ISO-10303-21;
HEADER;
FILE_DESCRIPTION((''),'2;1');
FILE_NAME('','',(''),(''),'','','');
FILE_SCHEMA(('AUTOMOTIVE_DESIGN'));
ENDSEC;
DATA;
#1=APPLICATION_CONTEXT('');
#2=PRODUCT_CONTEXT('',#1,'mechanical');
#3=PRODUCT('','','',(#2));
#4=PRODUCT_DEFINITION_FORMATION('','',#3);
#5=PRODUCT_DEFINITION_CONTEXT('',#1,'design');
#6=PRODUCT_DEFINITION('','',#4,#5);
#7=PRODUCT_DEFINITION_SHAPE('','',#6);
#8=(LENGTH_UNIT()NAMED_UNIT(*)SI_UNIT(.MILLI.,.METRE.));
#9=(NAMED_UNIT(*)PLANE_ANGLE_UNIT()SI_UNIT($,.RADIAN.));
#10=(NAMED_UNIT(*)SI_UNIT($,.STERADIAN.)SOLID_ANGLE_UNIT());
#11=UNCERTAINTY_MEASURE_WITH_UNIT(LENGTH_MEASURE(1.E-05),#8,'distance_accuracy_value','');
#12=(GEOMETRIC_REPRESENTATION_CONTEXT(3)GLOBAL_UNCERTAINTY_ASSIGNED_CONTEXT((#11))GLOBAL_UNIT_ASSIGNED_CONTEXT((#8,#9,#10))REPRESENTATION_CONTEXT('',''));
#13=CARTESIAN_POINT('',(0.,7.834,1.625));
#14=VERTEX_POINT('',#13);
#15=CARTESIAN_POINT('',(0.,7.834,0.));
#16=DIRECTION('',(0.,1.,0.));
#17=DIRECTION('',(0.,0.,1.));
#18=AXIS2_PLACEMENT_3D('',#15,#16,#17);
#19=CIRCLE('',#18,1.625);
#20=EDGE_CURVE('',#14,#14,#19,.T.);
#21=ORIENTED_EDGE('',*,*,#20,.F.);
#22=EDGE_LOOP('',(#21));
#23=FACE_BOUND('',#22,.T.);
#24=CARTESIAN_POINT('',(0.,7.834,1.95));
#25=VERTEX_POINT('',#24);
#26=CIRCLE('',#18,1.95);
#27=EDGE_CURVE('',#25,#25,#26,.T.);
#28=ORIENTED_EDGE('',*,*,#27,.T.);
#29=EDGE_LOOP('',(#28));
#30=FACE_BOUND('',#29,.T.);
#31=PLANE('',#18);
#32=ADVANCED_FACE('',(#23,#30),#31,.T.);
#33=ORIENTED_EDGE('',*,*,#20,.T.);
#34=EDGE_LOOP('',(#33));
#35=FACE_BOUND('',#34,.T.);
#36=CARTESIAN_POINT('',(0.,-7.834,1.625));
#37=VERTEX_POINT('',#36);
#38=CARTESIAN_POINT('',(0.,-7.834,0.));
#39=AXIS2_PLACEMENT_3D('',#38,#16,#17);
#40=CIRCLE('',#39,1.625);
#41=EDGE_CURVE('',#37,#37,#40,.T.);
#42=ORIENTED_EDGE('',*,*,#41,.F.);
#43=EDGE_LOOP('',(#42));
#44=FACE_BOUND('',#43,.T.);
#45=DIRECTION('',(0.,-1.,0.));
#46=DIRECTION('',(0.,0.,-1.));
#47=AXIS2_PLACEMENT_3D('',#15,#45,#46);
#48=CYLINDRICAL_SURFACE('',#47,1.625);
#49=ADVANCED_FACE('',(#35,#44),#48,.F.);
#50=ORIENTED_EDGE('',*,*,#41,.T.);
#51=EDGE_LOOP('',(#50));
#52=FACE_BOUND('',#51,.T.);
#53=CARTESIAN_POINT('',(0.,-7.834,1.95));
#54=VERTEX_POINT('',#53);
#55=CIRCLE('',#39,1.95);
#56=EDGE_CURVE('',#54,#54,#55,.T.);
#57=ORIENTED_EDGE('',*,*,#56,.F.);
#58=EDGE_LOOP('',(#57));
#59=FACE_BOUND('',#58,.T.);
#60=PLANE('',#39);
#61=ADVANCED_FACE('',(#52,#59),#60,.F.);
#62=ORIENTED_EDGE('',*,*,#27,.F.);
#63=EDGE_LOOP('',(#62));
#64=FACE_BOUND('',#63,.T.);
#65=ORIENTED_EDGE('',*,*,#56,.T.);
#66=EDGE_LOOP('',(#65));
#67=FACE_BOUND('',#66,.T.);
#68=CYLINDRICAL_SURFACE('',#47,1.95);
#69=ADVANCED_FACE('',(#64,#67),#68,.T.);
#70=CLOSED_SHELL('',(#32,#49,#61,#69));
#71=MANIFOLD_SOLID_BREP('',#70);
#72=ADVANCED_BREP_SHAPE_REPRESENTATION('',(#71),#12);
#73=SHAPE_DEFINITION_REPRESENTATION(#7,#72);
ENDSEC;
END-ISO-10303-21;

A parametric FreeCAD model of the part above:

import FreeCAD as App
import Part
import Sketcher
from FreeCAD import Vector

doc = App.newDocument("Part")
body = doc.addObject("PartDesign::Body", "Body")

# Sketch on XZ plane
sketch1 = body.newObject("Sketcher::SketchObject", "Sketch")
sketch1.AttachmentSupport = (doc.getObject("XZ_Plane"), [""])
sketch1.MapMode = "FlatFace"
sketch1.addGeometry(Part.Circle(Vector(0, 0, 0), Vector(0, 0, 1), 1.9), False)
sketch1.addGeometry(Part.Circle(Vector(0, 0, 0), Vector(0, 0, 1), 1.6), False)
sketch1.addConstraint(Sketcher.Constraint("Coincident", 0, 3, -1, 1))
sketch1.addConstraint(Sketcher.Constraint("Coincident", 1, 3, -1, 1))
sketch1.addConstraint(Sketcher.Constraint("Diameter", 0, 3.9))
sketch1.addConstraint(Sketcher.Constraint("Diameter", 1, 3.25))
pad1 = body.newObject("PartDesign::Pad", "Pad")
pad1.Profile = sketch1
pad1.Length = 15.668
pad1.Midplane = True

doc.recompute()
